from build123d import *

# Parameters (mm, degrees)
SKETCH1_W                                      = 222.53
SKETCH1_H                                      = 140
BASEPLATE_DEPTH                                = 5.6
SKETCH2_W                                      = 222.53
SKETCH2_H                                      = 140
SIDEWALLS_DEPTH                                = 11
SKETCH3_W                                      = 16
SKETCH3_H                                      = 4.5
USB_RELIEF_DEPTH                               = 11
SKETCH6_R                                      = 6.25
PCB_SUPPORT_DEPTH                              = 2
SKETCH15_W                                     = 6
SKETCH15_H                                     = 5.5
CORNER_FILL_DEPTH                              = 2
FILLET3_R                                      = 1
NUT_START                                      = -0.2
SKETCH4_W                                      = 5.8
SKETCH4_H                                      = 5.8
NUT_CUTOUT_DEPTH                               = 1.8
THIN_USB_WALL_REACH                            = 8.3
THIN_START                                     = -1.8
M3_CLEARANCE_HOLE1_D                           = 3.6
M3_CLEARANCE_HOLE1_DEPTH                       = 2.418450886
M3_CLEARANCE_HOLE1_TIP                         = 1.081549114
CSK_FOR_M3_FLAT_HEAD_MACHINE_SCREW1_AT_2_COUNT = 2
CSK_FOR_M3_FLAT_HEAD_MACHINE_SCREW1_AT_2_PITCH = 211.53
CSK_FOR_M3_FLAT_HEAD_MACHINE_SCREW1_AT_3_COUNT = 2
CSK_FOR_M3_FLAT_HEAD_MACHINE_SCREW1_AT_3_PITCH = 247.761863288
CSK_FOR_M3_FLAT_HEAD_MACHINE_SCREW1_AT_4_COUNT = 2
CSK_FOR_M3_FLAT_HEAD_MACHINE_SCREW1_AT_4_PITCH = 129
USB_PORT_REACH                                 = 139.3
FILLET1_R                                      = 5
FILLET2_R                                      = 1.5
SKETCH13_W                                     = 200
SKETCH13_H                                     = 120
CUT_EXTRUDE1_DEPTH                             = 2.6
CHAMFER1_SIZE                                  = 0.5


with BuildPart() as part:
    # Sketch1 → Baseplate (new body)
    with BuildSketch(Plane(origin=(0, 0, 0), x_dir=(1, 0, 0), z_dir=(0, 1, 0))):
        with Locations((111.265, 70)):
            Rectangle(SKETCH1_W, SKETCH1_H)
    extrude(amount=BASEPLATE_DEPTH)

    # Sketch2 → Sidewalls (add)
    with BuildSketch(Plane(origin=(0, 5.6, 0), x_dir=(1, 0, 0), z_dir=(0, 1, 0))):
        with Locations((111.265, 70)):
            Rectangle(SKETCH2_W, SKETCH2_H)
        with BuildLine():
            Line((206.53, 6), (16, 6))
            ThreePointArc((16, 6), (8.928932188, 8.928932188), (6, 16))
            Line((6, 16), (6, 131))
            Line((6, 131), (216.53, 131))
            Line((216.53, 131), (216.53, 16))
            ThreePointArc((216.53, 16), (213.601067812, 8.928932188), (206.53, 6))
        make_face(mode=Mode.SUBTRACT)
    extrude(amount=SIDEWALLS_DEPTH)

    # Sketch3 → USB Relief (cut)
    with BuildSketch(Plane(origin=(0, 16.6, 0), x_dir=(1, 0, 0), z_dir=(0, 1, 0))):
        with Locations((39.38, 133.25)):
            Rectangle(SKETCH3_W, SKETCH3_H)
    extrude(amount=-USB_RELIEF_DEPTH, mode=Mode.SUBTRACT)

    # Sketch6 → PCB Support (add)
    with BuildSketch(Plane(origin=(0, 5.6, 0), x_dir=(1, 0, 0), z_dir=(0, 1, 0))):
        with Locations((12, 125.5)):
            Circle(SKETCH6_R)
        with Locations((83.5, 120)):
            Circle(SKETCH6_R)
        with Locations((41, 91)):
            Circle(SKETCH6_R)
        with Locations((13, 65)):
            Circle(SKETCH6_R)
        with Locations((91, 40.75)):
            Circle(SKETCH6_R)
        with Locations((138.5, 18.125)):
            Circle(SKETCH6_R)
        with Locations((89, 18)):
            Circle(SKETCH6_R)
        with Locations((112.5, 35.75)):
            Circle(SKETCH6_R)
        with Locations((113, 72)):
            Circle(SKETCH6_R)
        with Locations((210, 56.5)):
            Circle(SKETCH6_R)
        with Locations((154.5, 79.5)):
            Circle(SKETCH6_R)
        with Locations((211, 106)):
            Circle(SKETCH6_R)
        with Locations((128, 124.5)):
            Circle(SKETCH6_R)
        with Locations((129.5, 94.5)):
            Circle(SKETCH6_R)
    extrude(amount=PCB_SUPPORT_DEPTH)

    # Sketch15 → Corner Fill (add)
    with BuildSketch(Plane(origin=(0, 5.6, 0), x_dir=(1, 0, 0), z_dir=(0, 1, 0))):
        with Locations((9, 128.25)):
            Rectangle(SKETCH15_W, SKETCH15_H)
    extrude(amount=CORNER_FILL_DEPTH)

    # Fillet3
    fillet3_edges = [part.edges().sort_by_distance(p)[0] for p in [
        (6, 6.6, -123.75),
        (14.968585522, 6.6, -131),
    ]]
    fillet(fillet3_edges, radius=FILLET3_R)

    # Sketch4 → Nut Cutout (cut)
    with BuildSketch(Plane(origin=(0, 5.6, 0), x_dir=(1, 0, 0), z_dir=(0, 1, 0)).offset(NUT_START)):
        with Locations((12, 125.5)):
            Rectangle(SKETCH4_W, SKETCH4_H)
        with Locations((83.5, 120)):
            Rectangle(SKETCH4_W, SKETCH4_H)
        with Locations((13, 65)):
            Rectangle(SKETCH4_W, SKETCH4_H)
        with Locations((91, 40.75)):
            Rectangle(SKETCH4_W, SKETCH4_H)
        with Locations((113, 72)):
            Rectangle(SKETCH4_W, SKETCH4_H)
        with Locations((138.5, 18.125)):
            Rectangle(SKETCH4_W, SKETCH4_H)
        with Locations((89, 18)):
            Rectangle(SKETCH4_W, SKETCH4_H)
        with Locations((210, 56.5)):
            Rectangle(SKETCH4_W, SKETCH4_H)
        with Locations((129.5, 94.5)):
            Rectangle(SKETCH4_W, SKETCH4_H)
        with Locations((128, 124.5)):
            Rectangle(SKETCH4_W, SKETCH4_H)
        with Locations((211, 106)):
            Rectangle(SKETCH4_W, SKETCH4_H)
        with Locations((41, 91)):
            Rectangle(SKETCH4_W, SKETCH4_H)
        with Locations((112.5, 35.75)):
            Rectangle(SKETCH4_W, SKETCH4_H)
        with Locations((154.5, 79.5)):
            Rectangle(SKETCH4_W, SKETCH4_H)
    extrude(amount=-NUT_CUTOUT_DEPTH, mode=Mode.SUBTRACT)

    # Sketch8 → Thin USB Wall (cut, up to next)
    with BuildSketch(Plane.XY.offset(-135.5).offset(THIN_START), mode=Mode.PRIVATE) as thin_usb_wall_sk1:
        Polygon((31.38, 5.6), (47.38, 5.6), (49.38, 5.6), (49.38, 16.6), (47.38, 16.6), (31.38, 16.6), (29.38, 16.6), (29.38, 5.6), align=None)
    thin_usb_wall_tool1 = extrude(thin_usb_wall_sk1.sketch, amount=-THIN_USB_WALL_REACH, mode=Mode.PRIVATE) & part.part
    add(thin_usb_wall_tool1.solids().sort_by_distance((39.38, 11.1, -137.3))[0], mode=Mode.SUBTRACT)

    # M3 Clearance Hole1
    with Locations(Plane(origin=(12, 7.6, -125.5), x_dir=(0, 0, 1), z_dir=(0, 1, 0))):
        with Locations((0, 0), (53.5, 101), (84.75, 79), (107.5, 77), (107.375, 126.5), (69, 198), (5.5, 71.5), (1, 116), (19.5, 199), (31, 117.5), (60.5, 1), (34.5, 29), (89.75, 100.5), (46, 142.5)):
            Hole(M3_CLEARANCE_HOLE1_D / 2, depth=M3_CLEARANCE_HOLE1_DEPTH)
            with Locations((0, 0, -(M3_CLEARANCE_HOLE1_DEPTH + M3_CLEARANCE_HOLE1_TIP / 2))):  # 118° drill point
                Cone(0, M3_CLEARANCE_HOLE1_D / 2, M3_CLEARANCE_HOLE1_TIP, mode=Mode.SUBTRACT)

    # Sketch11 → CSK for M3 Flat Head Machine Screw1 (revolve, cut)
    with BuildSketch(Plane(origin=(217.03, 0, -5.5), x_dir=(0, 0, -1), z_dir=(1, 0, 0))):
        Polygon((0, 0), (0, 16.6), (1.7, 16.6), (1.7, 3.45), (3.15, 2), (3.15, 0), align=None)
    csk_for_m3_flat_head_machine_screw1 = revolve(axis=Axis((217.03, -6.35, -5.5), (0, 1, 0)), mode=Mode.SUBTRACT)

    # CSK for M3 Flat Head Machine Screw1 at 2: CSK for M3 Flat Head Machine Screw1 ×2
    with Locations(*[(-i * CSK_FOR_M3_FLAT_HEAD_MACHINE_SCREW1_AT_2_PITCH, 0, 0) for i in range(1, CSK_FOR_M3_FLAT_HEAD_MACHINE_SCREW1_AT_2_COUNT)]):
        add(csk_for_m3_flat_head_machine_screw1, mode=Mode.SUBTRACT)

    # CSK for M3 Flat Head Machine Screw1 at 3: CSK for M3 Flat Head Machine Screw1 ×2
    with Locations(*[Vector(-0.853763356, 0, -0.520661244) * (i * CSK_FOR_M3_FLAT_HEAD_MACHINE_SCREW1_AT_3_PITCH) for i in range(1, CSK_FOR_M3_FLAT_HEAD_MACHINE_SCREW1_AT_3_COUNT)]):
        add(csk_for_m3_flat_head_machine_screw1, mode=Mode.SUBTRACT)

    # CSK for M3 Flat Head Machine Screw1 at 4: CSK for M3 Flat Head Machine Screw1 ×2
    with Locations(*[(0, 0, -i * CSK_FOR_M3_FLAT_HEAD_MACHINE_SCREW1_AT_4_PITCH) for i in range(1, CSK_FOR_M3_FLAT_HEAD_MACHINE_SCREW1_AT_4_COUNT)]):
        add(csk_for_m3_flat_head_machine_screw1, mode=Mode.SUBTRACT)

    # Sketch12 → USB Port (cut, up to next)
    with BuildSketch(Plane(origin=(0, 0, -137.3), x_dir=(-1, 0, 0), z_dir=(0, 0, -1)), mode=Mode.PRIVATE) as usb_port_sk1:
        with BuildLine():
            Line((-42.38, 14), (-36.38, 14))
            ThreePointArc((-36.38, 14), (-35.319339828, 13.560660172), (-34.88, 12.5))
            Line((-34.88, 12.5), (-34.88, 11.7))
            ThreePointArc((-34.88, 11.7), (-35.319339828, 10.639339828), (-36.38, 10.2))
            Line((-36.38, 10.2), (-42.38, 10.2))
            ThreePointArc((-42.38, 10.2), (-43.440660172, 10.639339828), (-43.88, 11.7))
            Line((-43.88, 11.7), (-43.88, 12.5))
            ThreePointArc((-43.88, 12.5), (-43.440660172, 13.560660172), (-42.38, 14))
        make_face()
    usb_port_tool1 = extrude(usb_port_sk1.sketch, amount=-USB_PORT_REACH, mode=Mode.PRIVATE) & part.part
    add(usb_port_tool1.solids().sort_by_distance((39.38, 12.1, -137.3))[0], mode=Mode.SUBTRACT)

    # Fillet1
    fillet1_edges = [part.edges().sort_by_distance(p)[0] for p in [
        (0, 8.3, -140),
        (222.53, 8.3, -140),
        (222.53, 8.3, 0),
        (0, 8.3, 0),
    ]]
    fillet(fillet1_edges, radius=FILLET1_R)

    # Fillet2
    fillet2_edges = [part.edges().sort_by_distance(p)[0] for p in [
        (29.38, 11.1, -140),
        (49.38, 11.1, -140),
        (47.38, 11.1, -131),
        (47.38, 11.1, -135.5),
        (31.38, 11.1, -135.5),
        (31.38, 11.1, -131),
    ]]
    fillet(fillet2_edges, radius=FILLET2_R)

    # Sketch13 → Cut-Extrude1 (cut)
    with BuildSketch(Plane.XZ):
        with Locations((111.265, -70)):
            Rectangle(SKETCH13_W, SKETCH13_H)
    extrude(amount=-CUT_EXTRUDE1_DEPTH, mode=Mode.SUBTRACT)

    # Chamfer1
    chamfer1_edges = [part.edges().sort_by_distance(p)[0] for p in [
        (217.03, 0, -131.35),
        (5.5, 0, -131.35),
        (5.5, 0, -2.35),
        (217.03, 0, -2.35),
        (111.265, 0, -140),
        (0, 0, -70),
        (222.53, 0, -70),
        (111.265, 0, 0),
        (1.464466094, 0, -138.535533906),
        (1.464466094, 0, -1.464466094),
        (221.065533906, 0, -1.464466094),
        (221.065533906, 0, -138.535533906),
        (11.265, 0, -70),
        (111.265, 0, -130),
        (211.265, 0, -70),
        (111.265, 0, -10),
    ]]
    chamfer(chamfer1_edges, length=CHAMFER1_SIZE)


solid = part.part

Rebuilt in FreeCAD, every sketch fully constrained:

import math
import FreeCAD as App
import Part
import Sketcher

V = App.Vector
Q = App.Units.Quantity


def edges_at(feature, points):
    """Names of the edges that pass closest to the given points."""
    edges = feature.Shape.Edges
    near = lambda p: min(range(len(edges)), key=lambda i: edges[i].distToShape(Part.Vertex(*p))[0])
    return sorted({f"Edge{near(p) + 1}" for p in points})


def add_polygon(sketch, points):
    """Adds a closed chain of lines whose ends are joined by coincident constraints."""
    first, n = sketch.GeometryCount, len(points)
    for a, b in zip(points, points[1:] + points[:1]):
        sketch.addGeometry(Part.LineSegment(App.Vector(*a, 0), App.Vector(*b, 0)), False)
    for i in range(n):
        sketch.addConstraint(Sketcher.Constraint("Coincident", first + i, 2, first + (i + 1) % n, 1))

doc = App.newDocument("Part")
body = doc.addObject("PartDesign::Body", "Body")

# Sketch on XZ plane
sketch1 = body.newObject("Sketcher::SketchObject", "Sketch")
sketch1.AttachmentSupport = (doc.getObject("XZ_Plane"), [""])
sketch1.MapMode = "FlatFace"
add_polygon(sketch1, [(0, -140), (0, 0), (223, 0), (223, -140)])  # lines 0-3
sketch1.addConstraint([
    Sketcher.Constraint("Vertical", 0),
    Sketcher.Constraint("Horizontal", 1),
    Sketcher.Constraint("Vertical", 2),
    Sketcher.Constraint("Horizontal", 3),
    Sketcher.Constraint("Coincident", 0, 2, -1, 1),
    Sketcher.Constraint("DistanceY", 0, 1, 0, 2, Q("140 mm")),
    Sketcher.Constraint("DistanceX", 1, 1, 1, 2, Q("222.53 mm")),
])
pad1 = body.newObject("PartDesign::Pad", "Pad")
pad1.Profile = sketch1
pad1.Length = 5.6
pad1.Reversed = True

# Sketch on XZ plane
sketch2 = body.newObject("Sketcher::SketchObject", "Sketch001")
sketch2.AttachmentSupport = (doc.getObject("XZ_Plane"), [""])
sketch2.MapMode = "FlatFace"
sketch2.AttachmentOffset = App.Placement(V(0, 0, -5.6), App.Rotation())
add_polygon(sketch2, [(0, -140), (0, 0), (223, 0), (223, -140)])  # lines 0-3
sketch2.addGeometry(Part.ArcOfCircle(Part.Circle(V(207, -16, 0), V(0, 0, 1), 10), math.radians(0), math.radians(90)), False)  # 4
sketch2.addGeometry(Part.LineSegment(V(207, -6, 0), V(16, -6, 0)), False)  # 5
sketch2.addGeometry(Part.ArcOfCircle(Part.Circle(V(16, -16, 0), V(0, 0, 1), 10), math.radians(90), math.radians(180)), False)  # 6
sketch2.addGeometry(Part.LineSegment(V(6, -16, 0), V(6, -131, 0)), False)  # 7
sketch2.addGeometry(Part.LineSegment(V(6, -131, 0), V(217, -131, 0)), False)  # 8
sketch2.addGeometry(Part.LineSegment(V(217, -131, 0), V(217, -16, 0)), False)  # 9
sketch2.addConstraint([
    Sketcher.Constraint("Tangent", 4, 2, 5, 1),
    Sketcher.Constraint("Tangent", 5, 2, 6, 1),
    Sketcher.Constraint("Tangent", 6, 2, 7, 1),
    Sketcher.Constraint("Coincident", 7, 2, 8, 1),
    Sketcher.Constraint("Coincident", 8, 2, 9, 1),
    Sketcher.Constraint("Tangent", 9, 2, 4, 1),
    Sketcher.Constraint("Vertical", 0),
    Sketcher.Constraint("Horizontal", 1),
    Sketcher.Constraint("Vertical", 2),
    Sketcher.Constraint("Horizontal", 3),
    Sketcher.Constraint("Horizontal", 5),
    Sketcher.Constraint("Vertical", 7),
    Sketcher.Constraint("Horizontal", 8),
    Sketcher.Constraint("Vertical", 9),
    Sketcher.Constraint("Coincident", 0, 2, -1, 1),
    Sketcher.Constraint("Equal", 4, 6),
    Sketcher.Constraint("Radius", 4, Q("10 mm")),
    Sketcher.Constraint("DistanceY", 0, 1, 0, 2, Q("140 mm")),
    Sketcher.Constraint("DistanceY", 7, 2, 7, 1, Q("115 mm")),
    Sketcher.Constraint("DistanceY", 4, 3, -1, 1, Q("16 mm")),
    Sketcher.Constraint("DistanceX", -1, 1, 6, 3, Q("16 mm")),
    Sketcher.Constraint("DistanceX", 4, 3, 1, 2, Q("16 mm")),
    Sketcher.Constraint("DistanceX", 1, 1, 1, 2, Q("222.53 mm")),
])
pad2 = body.newObject("PartDesign::Pad", "Pad001")
pad2.Profile = sketch2
pad2.Length = 11
pad2.Reversed = True

# Sketch on XZ plane
sketch3 = body.newObject("Sketcher::SketchObject", "Sketch002")
sketch3.AttachmentSupport = (doc.getObject("XZ_Plane"), [""])
sketch3.MapMode = "FlatFace"
sketch3.AttachmentOffset = App.Placement(V(0, 0, -16.6), App.Rotation())
add_polygon(sketch3, [(31.4, -135.5), (31.4, -131), (47.4, -131), (47.4, -135.5)])  # lines 0-3
sketch3.addConstraint([
    Sketcher.Constraint("Vertical", 0),
    Sketcher.Constraint("Horizontal", 1),
    Sketcher.Constraint("Vertical", 2),
    Sketcher.Constraint("Horizontal", 3),
    Sketcher.Constraint("DistanceX", 1, 1, 1, 2, Q("16 mm")),
    Sketcher.Constraint("DistanceY", 0, 1, 0, 2, Q("4.5 mm")),
    Sketcher.Constraint("DistanceY", 0, 2, -1, 1, Q("131 mm")),
    Sketcher.Constraint("DistanceX", -1, 1, 0, 2, Q("31.38 mm")),
])
pocket1 = body.newObject("PartDesign::Pocket", "Pocket")
pocket1.Profile = sketch3
pocket1.Length = 11
pocket1.Reversed = True

# Sketch on XZ plane
sketch4 = body.newObject("Sketcher::SketchObject", "Sketch003")
sketch4.AttachmentSupport = (doc.getObject("XZ_Plane"), [""])
sketch4.MapMode = "FlatFace"
sketch4.AttachmentOffset = App.Placement(V(0, 0, -5.6), App.Rotation())
sketch4.addGeometry([
    Part.Circle(V(12, -126, 0), V(0, 0, 1), 6),  # 0
    Part.Circle(V(84, -120, 0), V(0, 0, 1), 6),  # 1
    Part.Circle(V(41, -91, 0), V(0, 0, 1), 6),  # 2
    Part.Circle(V(13, -65, 0), V(0, 0, 1), 6),  # 3
    Part.Circle(V(91, -41, 0), V(0, 0, 1), 6),  # 4
    Part.Circle(V(138, -18, 0), V(0, 0, 1), 6),  # 5
    Part.Circle(V(89, -18, 0), V(0, 0, 1), 6),  # 6
    Part.Circle(V(112, -36, 0), V(0, 0, 1), 6),  # 7
    Part.Circle(V(113, -72, 0), V(0, 0, 1), 6),  # 8
    Part.Circle(V(210, -56, 0), V(0, 0, 1), 6),  # 9
    Part.Circle(V(154, -80, 0), V(0, 0, 1), 6),  # 10
    Part.Circle(V(211, -106, 0), V(0, 0, 1), 6),  # 11
    Part.Circle(V(128, -124, 0), V(0, 0, 1), 6),  # 12
    Part.Circle(V(130, -94, 0), V(0, 0, 1), 6),  # 13
], False)
sketch4.addConstraint([
    Sketcher.Constraint("Equal", 0, 1),
    Sketcher.Constraint("Equal", 1, 2),
    Sketcher.Constraint("Equal", 2, 3),
    Sketcher.Constraint("Equal", 3, 4),
    Sketcher.Constraint("Equal", 4, 5),
    Sketcher.Constraint("Equal", 5, 6),
    Sketcher.Constraint("Equal", 6, 7),
    Sketcher.Constraint("Equal", 7, 8),
    Sketcher.Constraint("Equal", 8, 9),
    Sketcher.Constraint("Equal", 9, 10),
    Sketcher.Constraint("Equal", 10, 11),
    Sketcher.Constraint("Equal", 11, 12),
    Sketcher.Constraint("Equal", 12, 13),
    Sketcher.Constraint("Diameter", 0, Q("12.5 mm")),
    Sketcher.Constraint("DistanceX", -1, 1, 0, 3, Q("12 mm")),
    Sketcher.Constraint("DistanceY", 1, 3, -1, 1, Q("120 mm")),
    Sketcher.Constraint("DistanceX", -1, 1, 2, 3, Q("41 mm")),
    Sketcher.Constraint("DistanceY", 2, 3, -1, 1, Q("91 mm")),
    Sketcher.Constraint("DistanceX", -1, 1, 3, 3, Q("13 mm")),
    Sketcher.Constraint("DistanceY", 3, 3, -1, 1, Q("65 mm")),
    Sketcher.Constraint("DistanceX", -1, 1, 4, 3, Q("91 mm")),
    Sketcher.Constraint("DistanceX", -1, 1, 6, 3, Q("89 mm")),
    Sketcher.Constraint("DistanceY", 6, 3, -1, 1, Q("18 mm")),
    Sketcher.Constraint("DistanceX", -1, 1, 8, 3, Q("113 mm")),
    Sketcher.Constraint("DistanceY", 8, 3, -1, 1, Q("72 mm")),
    Sketcher.Constraint("DistanceX", -1, 1, 9, 3, Q("210 mm")),
    Sketcher.Constraint("DistanceX", -1, 1, 11, 3, Q("211 mm")),
    Sketcher.Constraint("DistanceY", 11, 3, -1, 1, Q("106 mm")),
    Sketcher.Constraint("DistanceX", -1, 1, 12, 3, Q("128 mm")),
    Sketcher.Constraint("DistanceX", 1, 3, 5, 3, Q("55 mm")),
    Sketcher.Constraint("DistanceY", 4, 3, 7, 3, Q("5 mm")),
    Sketcher.Constraint("DistanceX", 7, 3, 5, 3, Q("26 mm")),
    Sketcher.Constraint("DistanceY", 10, 3, 9, 3, Q("23 mm")),
    Sketcher.Constraint("DistanceX", 7, 3, 10, 3, Q("42 mm")),
    Sketcher.Constraint("DistanceY", 12, 3, 10, 3, Q("45 mm")),
    Sketcher.Constraint("DistanceX", 13, 3, 10, 3, Q("25 mm")),
    Sketcher.Constraint("DistanceY", 13, 3, 10, 3, Q("15 mm")),
    Sketcher.Constraint("DistanceY", 0, 3, -1, 1, Q("125.5 mm")),
    Sketcher.Constraint("DistanceX", -1, 1, 1, 3, Q("83.5 mm")),
    Sketcher.Constraint("DistanceY", 9, 3, -1, 1, Q("56.5 mm")),
    Sketcher.Constraint("DistanceY", 4, 3, -1, 1, Q("40.75 mm")),
    Sketcher.Constraint("DistanceY", 5, 3, -1, 1, Q("18.125 mm")),
])
pad3 = body.newObject("PartDesign::Pad", "Pad002")
pad3.Profile = sketch4
pad3.Length = 2
pad3.Reversed = True

# Sketch on XZ plane
sketch5 = body.newObject("Sketcher::SketchObject", "Sketch004")
sketch5.AttachmentSupport = (doc.getObject("XZ_Plane"), [""])
sketch5.MapMode = "FlatFace"
sketch5.AttachmentOffset = App.Placement(V(0, 0, -5.6), App.Rotation())
add_polygon(sketch5, [(6, -131), (6, -126), (12, -126), (12, -131)])  # lines 0-3
sketch5.addConstraint([
    Sketcher.Constraint("Vertical", 0),
    Sketcher.Constraint("Horizontal", 1),
    Sketcher.Constraint("Vertical", 2),
    Sketcher.Constraint("Horizontal", 3),
    Sketcher.Constraint("DistanceX", 1, 1, 1, 2, Q("6 mm")),
    Sketcher.Constraint("DistanceY", 0, 1, 0, 2, Q("5.5 mm")),
    Sketcher.Constraint("DistanceX", -1, 1, 0, 2, Q("6 mm")),
    Sketcher.Constraint("DistanceY", 2, 2, -1, 1, Q("131 mm")),
])
pad4 = body.newObject("PartDesign::Pad", "Pad003")
pad4.Profile = sketch5
pad4.Length = 2
pad4.Reversed = True
doc.recompute()

fillet = body.newObject("PartDesign::Fillet", "Fillet")
fillet.Base = (pad4, edges_at(pad4, [(6, 6.6, -123.75), (14.969, 6.6, -131)]))
fillet.Radius = 1

# Sketch on XZ plane
sketch6 = body.newObject("Sketcher::SketchObject", "Sketch005")
sketch6.AttachmentSupport = (doc.getObject("XZ_Plane"), [""])
sketch6.MapMode = "FlatFace"
sketch6.AttachmentOffset = App.Placement(V(0, 0, -5.4), App.Rotation())
add_polygon(sketch6, [(9, -128), (9, -123), (15, -123), (15, -128)])  # lines 0-3
add_polygon(sketch6, [(81, -123), (81, -117), (86, -117), (86, -123)])  # lines 4-7
add_polygon(sketch6, [(10, -68), (10, -62), (16, -62), (16, -68)])  # lines 8-11
add_polygon(sketch6, [(88, -44), (88, -38), (94, -38), (94, -44)])  # lines 12-15
add_polygon(sketch6, [(110, -75), (110, -69), (116, -69), (116, -75)])  # lines 16-19
add_polygon(sketch6, [(136, -21), (136, -15), (141, -15), (141, -21)])  # lines 20-23
add_polygon(sketch6, [(86, -21), (86, -15), (92, -15), (92, -21)])  # lines 24-27
add_polygon(sketch6, [(207, -59), (207, -54), (213, -54), (213, -59)])  # lines 28-31
add_polygon(sketch6, [(127, -97), (127, -92), (132, -92), (132, -97)])  # lines 32-35
add_polygon(sketch6, [(125, -127), (125, -122), (131, -122), (131, -127)])  # lines 36-39
add_polygon(sketch6, [(208, -109), (208, -103), (214, -103), (214, -109)])  # lines 40-43
add_polygon(sketch6, [(38, -94), (38, -88), (44, -88), (44, -94)])  # lines 44-47
add_polygon(sketch6, [(110, -39), (110, -33), (115, -33), (115, -39)])  # lines 48-51
add_polygon(sketch6, [(152, -82), (152, -77), (157, -77), (157, -82)])  # lines 52-55
sketch6.addConstraint([
    Sketcher.Constraint("Vertical", 0),
    Sketcher.Constraint("Horizontal", 1),
    Sketcher.Constraint("Vertical", 2),
    Sketcher.Constraint("Horizontal", 3),
    Sketcher.Constraint("Vertical", 4),
    Sketcher.Constraint("Horizontal", 5),
    Sketcher.Constraint("Vertical", 6),
    Sketcher.Constraint("Horizontal", 7),
    Sketcher.Constraint("Vertical", 8),
    Sketcher.Constraint("Horizontal", 9),
    Sketcher.Constraint("Vertical", 10),
    Sketcher.Constraint("Horizontal", 11),
    Sketcher.Constraint("Vertical", 12),
    Sketcher.Constraint("Horizontal", 13),
    Sketcher.Constraint("Vertical", 14),
    Sketcher.Constraint("Horizontal", 15),
    Sketcher.Constraint("Vertical", 16),
    Sketcher.Constraint("Horizontal", 17),
    Sketcher.Constraint("Vertical", 18),
    Sketcher.Constraint("Horizontal", 19),
    Sketcher.Constraint("Vertical", 20),
    Sketcher.Constraint("Horizontal", 21),
    Sketcher.Constraint("Vertical", 22),
    Sketcher.Constraint("Horizontal", 23),
    Sketcher.Constraint("Vertical", 24),
    Sketcher.Constraint("Horizontal", 25),
    Sketcher.Constraint("Vertical", 26),
    Sketcher.Constraint("Horizontal", 27),
    Sketcher.Constraint("Vertical", 28),
    Sketcher.Constraint("Horizontal", 29),
    Sketcher.Constraint("Vertical", 30),
    Sketcher.Constraint("Horizontal", 31),
    Sketcher.Constraint("Vertical", 32),
    Sketcher.Constraint("Horizontal", 33),
    Sketcher.Constraint("Vertical", 34),
    Sketcher.Constraint("Horizontal", 35),
    Sketcher.Constraint("Vertical", 36),
    Sketcher.Constraint("Horizontal", 37),
    Sketcher.Constraint("Vertical", 38),
    Sketcher.Constraint("Horizontal", 39),
    Sketcher.Constraint("Vertical", 40),
    Sketcher.Constraint("Horizontal", 41),
    Sketcher.Constraint("Vertical", 42),
    Sketcher.Constraint("Horizontal", 43),
    Sketcher.Constraint("Vertical", 44),
    Sketcher.Constraint("Horizontal", 45),
    Sketcher.Constraint("Vertical", 46),
    Sketcher.Constraint("Horizontal", 47),
    Sketcher.Constraint("Vertical", 48),
    Sketcher.Constraint("Horizontal", 49),
    Sketcher.Constraint("Vertical", 50),
    Sketcher.Constraint("Horizontal", 51),
    Sketcher.Constraint("Vertical", 52),
    Sketcher.Constraint("Horizontal", 53),
    Sketcher.Constraint("Vertical", 54),
    Sketcher.Constraint("Horizontal", 55),
    Sketcher.Constraint("Equal", 3, 5),
    Sketcher.Constraint("Equal", 7, 9),
    Sketcher.Constraint("Equal", 11, 13),
    Sketcher.Constraint("Equal", 15, 17),
    Sketcher.Constraint("Equal", 19, 21),
    Sketcher.Constraint("Equal", 23, 25),
    Sketcher.Constraint("Equal", 27, 29),
    Sketcher.Constraint("Equal", 31, 33),
    Sketcher.Constraint("Equal", 35, 37),
    Sketcher.Constraint("Equal", 39, 41),
    Sketcher.Constraint("Equal", 43, 45),
    Sketcher.Constraint("Equal", 47, 49),
    Sketcher.Constraint("Equal", 51, 53),
    Sketcher.Constraint("Equal", 55, 0),
    Sketcher.Constraint("Equal", 2, 4),
    Sketcher.Constraint("Equal", 6, 8),
    Sketcher.Constraint("Equal", 10, 12),
    Sketcher.Constraint("Equal", 14, 16),
    Sketcher.Constraint("Equal", 18, 20),
    Sketcher.Constraint("Equal", 22, 24),
    Sketcher.Constraint("Equal", 26, 28),
    Sketcher.Constraint("Equal", 30, 32),
    Sketcher.Constraint("Equal", 34, 36),
    Sketcher.Constraint("Equal", 38, 40),
    Sketcher.Constraint("Equal", 42, 44),
    Sketcher.Constraint("Equal", 46, 48),
    Sketcher.Constraint("Equal", 50, 52),
    Sketcher.Constraint("DistanceX", 1, 1, 1, 2, Q("5.8 mm")),
    Sketcher.Constraint("DistanceX", 0, 2, 8, 2, Q("1 mm")),
    Sketcher.Constraint("DistanceY", 4, 2, 8, 2, Q("55 mm")),
    Sketcher.Constraint("DistanceX", 8, 2, 12, 2, Q("78 mm")),
    Sketcher.Constraint("DistanceX", 15, 2, 16, 2, Q("22 mm")),
    Sketcher.Constraint("DistanceY", 5, 2, 16, 2, Q("48 mm")),
    Sketcher.Constraint("DistanceX", 24, 2, 12, 2, Q("2 mm")),
    Sketcher.Constraint("DistanceY", 36, 2, 32, 2, Q("30 mm")),
    Sketcher.Constraint("DistanceX", 31, 2, 40, 2, Q("1 mm")),
    Sketcher.Constraint("DistanceY", 44, 2, 9, 2, Q("26 mm")),
    Sketcher.Constraint("DistanceX", 11, 2, 44, 2, Q("28 mm")),
    Sketcher.Constraint("DistanceY", 13, 2, 48, 2, Q("5 mm")),
    Sketcher.Constraint("DistanceY", 33, 2, 52, 2, Q("15 mm")),
    Sketcher.Constraint("DistanceX", 32, 2, 52, 2, Q("25 mm")),
    Sketcher.Constraint("DistanceX", -1, 1, 0, 2, Q("9.1 mm")),
    Sketcher.Constraint("DistanceY", 0, 2, -1, 1, Q("122.6 mm")),
    Sketcher.Constraint("DistanceX", -1, 1, 4, 2, Q("80.6 mm")),
    Sketcher.Constraint("DistanceY", 4, 2, -1, 1, Q("117.1 mm")),
    Sketcher.Constraint("DistanceX", -1, 1, 20, 2, Q("135.6 mm")),
    Sketcher.Constraint("DistanceY", 24, 2, -1, 1, Q("15.1 mm")),
    Sketcher.Constraint("DistanceX", -1, 1, 28, 2, Q("207.1 mm")),
    Sketcher.Constraint("DistanceY", 28, 2, -1, 1, Q("53.6 mm")),
    Sketcher.Constraint("DistanceX", -1, 1, 32, 2, Q("126.6 mm")),
    Sketcher.Constraint("DistanceY", 32, 2, -1, 1, Q("91.6 mm")),
    Sketcher.Constraint("DistanceX", -1, 1, 36, 2, Q("125.1 mm")),
    Sketcher.Constraint("DistanceY", 40, 2, -1, 1, Q("103.1 mm")),
    Sketcher.Constraint("DistanceX", -1, 1, 48, 2, Q("109.6 mm")),
    Sketcher.Constraint("DistanceY", 12, 2, -1, 1, Q("37.85 mm")),
    Sketcher.Constraint("DistanceY", 20, 2, -1, 1, Q("15.225 mm")),
])
pocket2 = body.newObject("PartDesign::Pocket", "Pocket001")
pocket2.Profile = sketch6
pocket2.Length = 1.8
pocket2.Reversed = True

# Sketch on XY plane
sketch7 = body.newObject("Sketcher::SketchObject", "Sketch006")
sketch7.AttachmentSupport = (doc.getObject("XY_Plane"), [""])
sketch7.MapMode = "FlatFace"
sketch7.AttachmentOffset = App.Placement(V(0, 0, -137.3), App.Rotation())
add_polygon(sketch7, [(49, 6), (49, 17), (29, 17), (29, 6)])  # lines 0-3
sketch7.addConstraint([
    Sketcher.Constraint("Vertical", 0),
    Sketcher.Constraint("Horizontal", 1),
    Sketcher.Constraint("Vertical", 2),
    Sketcher.Constraint("Horizontal", 3),
    Sketcher.Constraint("DistanceX", 1, 2, 1, 1, Q("20 mm")),
    Sketcher.Constraint("DistanceY", 0, 1, 0, 2, Q("11 mm")),
    Sketcher.Constraint("DistanceY", -1, 1, 0, 2, Q("16.6 mm")),
    Sketcher.Constraint("DistanceX", -1, 1, 0, 2, Q("49.38 mm")),
])
pocket3 = body.newObject("PartDesign::Pocket", "Pocket002")
pocket3.Profile = sketch7
pocket3.Type = "UpToFirst"

# Sketch on XZ plane
sketch8 = body.newObject("Sketcher::SketchObject", "Sketch007")
sketch8.AttachmentSupport = (doc.getObject("XZ_Plane"), [""])
sketch8.MapMode = "FlatFace"
sketch8.AttachmentOffset = App.Placement(V(0, 0, -7.6), App.Rotation())
sketch8.addGeometry([
    Part.Circle(V(12, -125.5, 0), V(0, 0, 1), 1.8),  # 0
    Part.Circle(V(113, -72, 0), V(0, 0, 1), 1.8),  # 1
    Part.Circle(V(91, -40.8, 0), V(0, 0, 1), 1.8),  # 2
    Part.Circle(V(89, -18, 0), V(0, 0, 1), 1.8),  # 3
    Part.Circle(V(138.5, -18.1, 0), V(0, 0, 1), 1.8),  # 4
    Part.Circle(V(210, -56.5, 0), V(0, 0, 1), 1.8),  # 5
    Part.Circle(V(83.5, -120, 0), V(0, 0, 1), 1.8),  # 6
    Part.Circle(V(128, -124.5, 0), V(0, 0, 1), 1.8),  # 7
    Part.Circle(V(211, -106, 0), V(0, 0, 1), 1.8),  # 8
    Part.Circle(V(129.5, -94.5, 0), V(0, 0, 1), 1.8),  # 9
    Part.Circle(V(13, -65, 0), V(0, 0, 1), 1.8),  # 10
    Part.Circle(V(41, -91, 0), V(0, 0, 1), 1.8),  # 11
    Part.Circle(V(112.5, -35.8, 0), V(0, 0, 1), 1.8),  # 12
    Part.Circle(V(154.5, -79.5, 0), V(0, 0, 1), 1.8),  # 13
], False)
sketch8.addConstraint([
    Sketcher.Constraint("Equal", 0, 1),
    Sketcher.Constraint("Equal", 1, 2),
    Sketcher.Constraint("Equal", 2, 3),
    Sketcher.Constraint("Equal", 3, 4),
    Sketcher.Constraint("Equal", 4, 5),
    Sketcher.Constraint("Equal", 5, 6),
    Sketcher.Constraint("Equal", 6, 7),
    Sketcher.Constraint("Equal", 7, 8),
    Sketcher.Constraint("Equal", 8, 9),
    Sketcher.Constraint("Equal", 9, 10),
    Sketcher.Constraint("Equal", 10, 11),
    Sketcher.Constraint("Equal", 11, 12),
    Sketcher.Constraint("Equal", 12, 13),
    Sketcher.Constraint("Diameter", 0, Q("3.6 mm")),
    Sketcher.Constraint("DistanceX", -1, 1, 0, 3, Q("12 mm")),
    Sketcher.Constraint("DistanceX", -1, 1, 1, 3, Q("113 mm")),
    Sketcher.Constraint("DistanceY", 1, 3, -1, 1, Q("72 mm")),
    Sketcher.Constraint("DistanceX", -1, 1, 2, 3, Q("91 mm")),
    Sketcher.Constraint("DistanceX", -1, 1, 3, 3, Q("89 mm")),
    Sketcher.Constraint("DistanceY", 3, 3, -1, 1, Q("18 mm")),
    Sketcher.Constraint("DistanceX", -1, 1, 5, 3, Q("210 mm")),
    Sketcher.Constraint("DistanceY", 6, 3, -1, 1, Q("120 mm")),
    Sketcher.Constraint("DistanceX", -1, 1, 7, 3, Q("128 mm")),
    Sketcher.Constraint("DistanceX", -1, 1, 8, 3, Q("211 mm")),
    Sketcher.Constraint("DistanceY", 8, 3, -1, 1, Q("106 mm")),
    Sketcher.Constraint("DistanceX", -1, 1, 10, 3, Q("13 mm")),
    Sketcher.Constraint("DistanceY", 10, 3, -1, 1, Q("65 mm")),
    Sketcher.Constraint("DistanceX", -1, 1, 11, 3, Q("41 mm")),
    Sketcher.Constraint("DistanceY", 11, 3, -1, 1, Q("91 mm")),
    Sketcher.Constraint("DistanceY", 0, 3, 5, 3, Q("69 mm")),
    Sketcher.Constraint("DistanceX", 6, 3, 4, 3, Q("55 mm")),
    Sketcher.Constraint("DistanceY", 7, 3, 5, 3, Q("68 mm")),
    Sketcher.Constraint("DistanceY", 7, 3, 9, 3, Q("30 mm")),
    Sketcher.Constraint("DistanceX", 6, 3, 9, 3, Q("46 mm")),
    Sketcher.Constraint("DistanceY", 2, 3, 12, 3, Q("5 mm")),
    Sketcher.Constraint("DistanceX", 12, 3, 4, 3, Q("26 mm")),
    Sketcher.Constraint("DistanceX", 9, 3, 13, 3, Q("25 mm")),
    Sketcher.Constraint("DistanceY", 9, 3, 13, 3, Q("15 mm")),
    Sketcher.Constraint("DistanceY", 0, 3, -1, 1, Q("125.5 mm")),
    Sketcher.Constraint("DistanceX", -1, 1, 4, 3, Q("138.5 mm")),
    Sketcher.Constraint("DistanceY", 2, 3, -1, 1, Q("40.75 mm")),
    Sketcher.Constraint("DistanceY", 4, 3, -1, 1, Q("18.125 mm")),
])
doc.recompute()
hole = body.newObject("PartDesign::Hole", "Hole")
hole.Profile = sketch8
hole.ThreadType = "None"
hole.Diameter = 3.6
hole.DepthType = "Dimension"
hole.Depth = 2.418451
hole.DrillPoint = "Angled"
hole.DrillPointAngle = 118
hole.Reversed = True

# Sketch on YZ plane
sketch9 = body.newObject("Sketcher::SketchObject", "Sketch008")
sketch9.AttachmentSupport = (doc.getObject("YZ_Plane"), [""])
sketch9.MapMode = "FlatFace"
sketch9.AttachmentOffset = App.Placement(V(0, 0, 217.03), App.Rotation())
add_polygon(sketch9, [(16.6, -5.5), (0, -5.5), (0, -8.7), (2, -8.7), (3.5, -7.2), (16.6, -7.2)])  # lines 0-5
sketch9.addGeometry(Part.LineSegment(V(0, -5.5, 0), V(16.6, -5.5, 0)), True)  # axis
sketch9.addConstraint([
    Sketcher.Constraint("Horizontal", 0),
    Sketcher.Constraint("Vertical", 1),
    Sketcher.Constraint("Horizontal", 2),
    Sketcher.Constraint("Horizontal", 4),
    Sketcher.Constraint("Vertical", 5),
    Sketcher.Constraint("Horizontal", 6),
    Sketcher.Constraint("Coincident", 6, 1, 0, 2),
    Sketcher.Constraint("PointOnObject", 0, 2, -2),
    Sketcher.Constraint("Vertical", 4, 2, 6, 2),
    Sketcher.Constraint("DistanceX", 2, 1, 2, 2, Q("2 mm")),
    Sketcher.Constraint("Angle", 3, Q("45 deg")),
    Sketcher.Constraint("DistanceX", 0, 2, 0, 1, Q("16.6 mm")),
    Sketcher.Constraint("DistanceY", 5, 1, 5, 2, Q("1.7 mm")),
    Sketcher.Constraint("DistanceX", 4, 1, 4, 2, Q("13.15 mm")),
    Sketcher.Constraint("DistanceY", 0, 2, -1, 1, Q("5.5 mm")),
])
groove = body.newObject("PartDesign::Groove", "Groove")
groove.Profile = sketch9
groove.ReferenceAxis = (sketch9, ["Axis0"])
groove.Angle = 360
doc.recompute()

linearpattern = body.newObject("PartDesign::LinearPattern", "LinearPattern")
linearpattern.Originals = [groove]
linearpattern.Direction = (doc.getObject("X_Axis"), [""])
linearpattern.Mode = "offset"
linearpattern.Offset = 211.53
linearpattern.Occurrences = 2
linearpattern.Reversed = True
body.Tip = linearpattern
doc.recompute()

datumline = body.newObject("PartDesign::Line", "DatumLine")
datumline.Placement = App.Placement(V(0, 0, 0), App.Rotation(V(0, 0, 1), V(-0.853763356, 0, -0.520661244)))
linearpattern2 = body.newObject("PartDesign::LinearPattern", "LinearPattern001")
linearpattern2.Originals = [groove]
linearpattern2.Direction = (datumline, [""])
linearpattern2.Mode = "offset"
linearpattern2.Offset = 247.761863
linearpattern2.Occurrences = 2
body.Tip = linearpattern2
doc.recompute()

linearpattern3 = body.newObject("PartDesign::LinearPattern", "LinearPattern002")
linearpattern3.Originals = [groove]
linearpattern3.Direction = (doc.getObject("Z_Axis"), [""])
linearpattern3.Mode = "offset"
linearpattern3.Offset = 129
linearpattern3.Occurrences = 2
linearpattern3.Reversed = True
body.Tip = linearpattern3

# Sketch on XY plane
sketch10 = body.newObject("Sketcher::SketchObject", "Sketch009")
sketch10.AttachmentSupport = (doc.getObject("XY_Plane"), [""])
sketch10.MapMode = "FlatFace"
sketch10.AttachmentOffset = App.Placement(V(0, 0, -137.3), App.Rotation())
sketch10.addGeometry([
    Part.LineSegment(V(36.4, 14, 0), V(42.4, 14, 0)),  # 0
    Part.ArcOfCircle(Part.Circle(V(42.4, 12.5, 0), V(0, 0, 1), 1.5), math.radians(0), math.radians(90)),  # 1
    Part.LineSegment(V(43.9, 12.5, 0), V(43.9, 11.7, 0)),  # 2
    Part.ArcOfCircle(Part.Circle(V(42.4, 11.7, 0), V(0, 0, 1), 1.5), math.radians(-90), math.radians(0)),  # 3
    Part.LineSegment(V(42.4, 10.2, 0), V(36.4, 10.2, 0)),  # 4
    Part.ArcOfCircle(Part.Circle(V(36.4, 11.7, 0), V(0, 0, 1), 1.5), math.radians(180), math.radians(270)),  # 5
    Part.LineSegment(V(34.9, 11.7, 0), V(34.9, 12.5, 0)),  # 6
    Part.ArcOfCircle(Part.Circle(V(36.4, 12.5, 0), V(0, 0, 1), 1.5), math.radians(90), math.radians(180)),  # 7
], False)
sketch10.addConstraint([
    Sketcher.Constraint("Tangent", 0, 2, 1, 2),
    Sketcher.Constraint("Tangent", 1, 1, 2, 1),
    Sketcher.Constraint("Tangent", 2, 2, 3, 2),
    Sketcher.Constraint("Tangent", 3, 1, 4, 1),
    Sketcher.Constraint("Tangent", 4, 2, 5, 2),
    Sketcher.Constraint("Tangent", 5, 1, 6, 1),
    Sketcher.Constraint("Tangent", 6, 2, 7, 2),
    Sketcher.Constraint("Tangent", 7, 1, 0, 1),
    Sketcher.Constraint("Horizontal", 0),
    Sketcher.Constraint("Vertical", 2),
    Sketcher.Constraint("Horizontal", 4),
    Sketcher.Constraint("Vertical", 6),
    Sketcher.Constraint("Equal", 1, 3),
    Sketcher.Constraint("Equal", 3, 5),
    Sketcher.Constraint("Equal", 5, 7),
    Sketcher.Constraint("Radius", 1, Q("1.5 mm")),
    Sketcher.Constraint("DistanceX", 0, 1, 0, 2, Q("6 mm")),
    Sketcher.Constraint("DistanceY", 2, 2, 2, 1, Q("0.8 mm")),
    Sketcher.Constraint("DistanceY", -1, 1, 0, 2, Q("14 mm")),
    Sketcher.Constraint("DistanceX", -1, 1, 1, 3, Q("42.38 mm")),
])
pocket4 = body.newObject("PartDesign::Pocket", "Pocket003")
pocket4.Profile = sketch10
pocket4.Type = "UpToFirst"
pocket4.Reversed = True
doc.recompute()

fillet2 = body.newObject("PartDesign::Fillet", "Fillet001")
fillet2.Base = (pocket4, edges_at(pocket4, [
    (0, 8.3, -140),
    (222.53, 8.3, -140),
    (222.53, 8.3, 0),
    (0, 8.3, 0),
]))
fillet2.Radius = 5
doc.recompute()

fillet3 = body.newObject("PartDesign::Fillet", "Fillet002")
fillet3.Base = (fillet2, edges_at(fillet2, [
    (29.38, 11.1, -140),
    (49.38, 11.1, -140),
    (47.38, 11.1, -131),
    (47.38, 11.1, -135.5),
    (31.38, 11.1, -135.5),
    (31.38, 11.1, -131),
]))
fillet3.Radius = 1.5

# Sketch on XZ plane
sketch11 = body.newObject("Sketcher::SketchObject", "Sketch010")
sketch11.AttachmentSupport = (doc.getObject("XZ_Plane"), [""])
sketch11.MapMode = "FlatFace"
add_polygon(sketch11, [(11, -10), (11, -130), (211, -130), (211, -10)])  # lines 0-3
sketch11.addConstraint([
    Sketcher.Constraint("Vertical", 0),
    Sketcher.Constraint("Horizontal", 1),
    Sketcher.Constraint("Vertical", 2),
    Sketcher.Constraint("Horizontal", 3),
    Sketcher.Constraint("DistanceX", 1, 1, 1, 2, Q("200 mm")),
    Sketcher.Constraint("DistanceY", 0, 2, 0, 1, Q("120 mm")),
    Sketcher.Constraint("DistanceY", 0, 2, -1, 1, Q("130 mm")),
    Sketcher.Constraint("DistanceX", -1, 1, 0, 2, Q("11.265 mm")),
])
pocket5 = body.newObject("PartDesign::Pocket", "Pocket004")
pocket5.Profile = sketch11
pocket5.Length = 2.6
doc.recompute()

chamfer = body.newObject("PartDesign::Chamfer", "Chamfer")
chamfer.Base = (pocket5, edges_at(pocket5, [
    (217.03, 0, -131.35),
    (5.5, 0, -131.35),
    (5.5, 0, -2.35),
    (217.03, 0, -2.35),
    (111.265, 0, -140),
    (0, 0, -70),
    (222.53, 0, -70),
    (111.265, 0, 0),
    (1.464, 0, -138.536),
    (1.464, 0, -1.464),
    (221.066, 0, -1.464),
    (221.066, 0, -138.536),
    (11.265, 0, -70),
    (111.265, 0, -130),
    (211.265, 0, -70),
    (111.265, 0, -10),
]))
chamfer.Size = 0.5

doc.recompute()
